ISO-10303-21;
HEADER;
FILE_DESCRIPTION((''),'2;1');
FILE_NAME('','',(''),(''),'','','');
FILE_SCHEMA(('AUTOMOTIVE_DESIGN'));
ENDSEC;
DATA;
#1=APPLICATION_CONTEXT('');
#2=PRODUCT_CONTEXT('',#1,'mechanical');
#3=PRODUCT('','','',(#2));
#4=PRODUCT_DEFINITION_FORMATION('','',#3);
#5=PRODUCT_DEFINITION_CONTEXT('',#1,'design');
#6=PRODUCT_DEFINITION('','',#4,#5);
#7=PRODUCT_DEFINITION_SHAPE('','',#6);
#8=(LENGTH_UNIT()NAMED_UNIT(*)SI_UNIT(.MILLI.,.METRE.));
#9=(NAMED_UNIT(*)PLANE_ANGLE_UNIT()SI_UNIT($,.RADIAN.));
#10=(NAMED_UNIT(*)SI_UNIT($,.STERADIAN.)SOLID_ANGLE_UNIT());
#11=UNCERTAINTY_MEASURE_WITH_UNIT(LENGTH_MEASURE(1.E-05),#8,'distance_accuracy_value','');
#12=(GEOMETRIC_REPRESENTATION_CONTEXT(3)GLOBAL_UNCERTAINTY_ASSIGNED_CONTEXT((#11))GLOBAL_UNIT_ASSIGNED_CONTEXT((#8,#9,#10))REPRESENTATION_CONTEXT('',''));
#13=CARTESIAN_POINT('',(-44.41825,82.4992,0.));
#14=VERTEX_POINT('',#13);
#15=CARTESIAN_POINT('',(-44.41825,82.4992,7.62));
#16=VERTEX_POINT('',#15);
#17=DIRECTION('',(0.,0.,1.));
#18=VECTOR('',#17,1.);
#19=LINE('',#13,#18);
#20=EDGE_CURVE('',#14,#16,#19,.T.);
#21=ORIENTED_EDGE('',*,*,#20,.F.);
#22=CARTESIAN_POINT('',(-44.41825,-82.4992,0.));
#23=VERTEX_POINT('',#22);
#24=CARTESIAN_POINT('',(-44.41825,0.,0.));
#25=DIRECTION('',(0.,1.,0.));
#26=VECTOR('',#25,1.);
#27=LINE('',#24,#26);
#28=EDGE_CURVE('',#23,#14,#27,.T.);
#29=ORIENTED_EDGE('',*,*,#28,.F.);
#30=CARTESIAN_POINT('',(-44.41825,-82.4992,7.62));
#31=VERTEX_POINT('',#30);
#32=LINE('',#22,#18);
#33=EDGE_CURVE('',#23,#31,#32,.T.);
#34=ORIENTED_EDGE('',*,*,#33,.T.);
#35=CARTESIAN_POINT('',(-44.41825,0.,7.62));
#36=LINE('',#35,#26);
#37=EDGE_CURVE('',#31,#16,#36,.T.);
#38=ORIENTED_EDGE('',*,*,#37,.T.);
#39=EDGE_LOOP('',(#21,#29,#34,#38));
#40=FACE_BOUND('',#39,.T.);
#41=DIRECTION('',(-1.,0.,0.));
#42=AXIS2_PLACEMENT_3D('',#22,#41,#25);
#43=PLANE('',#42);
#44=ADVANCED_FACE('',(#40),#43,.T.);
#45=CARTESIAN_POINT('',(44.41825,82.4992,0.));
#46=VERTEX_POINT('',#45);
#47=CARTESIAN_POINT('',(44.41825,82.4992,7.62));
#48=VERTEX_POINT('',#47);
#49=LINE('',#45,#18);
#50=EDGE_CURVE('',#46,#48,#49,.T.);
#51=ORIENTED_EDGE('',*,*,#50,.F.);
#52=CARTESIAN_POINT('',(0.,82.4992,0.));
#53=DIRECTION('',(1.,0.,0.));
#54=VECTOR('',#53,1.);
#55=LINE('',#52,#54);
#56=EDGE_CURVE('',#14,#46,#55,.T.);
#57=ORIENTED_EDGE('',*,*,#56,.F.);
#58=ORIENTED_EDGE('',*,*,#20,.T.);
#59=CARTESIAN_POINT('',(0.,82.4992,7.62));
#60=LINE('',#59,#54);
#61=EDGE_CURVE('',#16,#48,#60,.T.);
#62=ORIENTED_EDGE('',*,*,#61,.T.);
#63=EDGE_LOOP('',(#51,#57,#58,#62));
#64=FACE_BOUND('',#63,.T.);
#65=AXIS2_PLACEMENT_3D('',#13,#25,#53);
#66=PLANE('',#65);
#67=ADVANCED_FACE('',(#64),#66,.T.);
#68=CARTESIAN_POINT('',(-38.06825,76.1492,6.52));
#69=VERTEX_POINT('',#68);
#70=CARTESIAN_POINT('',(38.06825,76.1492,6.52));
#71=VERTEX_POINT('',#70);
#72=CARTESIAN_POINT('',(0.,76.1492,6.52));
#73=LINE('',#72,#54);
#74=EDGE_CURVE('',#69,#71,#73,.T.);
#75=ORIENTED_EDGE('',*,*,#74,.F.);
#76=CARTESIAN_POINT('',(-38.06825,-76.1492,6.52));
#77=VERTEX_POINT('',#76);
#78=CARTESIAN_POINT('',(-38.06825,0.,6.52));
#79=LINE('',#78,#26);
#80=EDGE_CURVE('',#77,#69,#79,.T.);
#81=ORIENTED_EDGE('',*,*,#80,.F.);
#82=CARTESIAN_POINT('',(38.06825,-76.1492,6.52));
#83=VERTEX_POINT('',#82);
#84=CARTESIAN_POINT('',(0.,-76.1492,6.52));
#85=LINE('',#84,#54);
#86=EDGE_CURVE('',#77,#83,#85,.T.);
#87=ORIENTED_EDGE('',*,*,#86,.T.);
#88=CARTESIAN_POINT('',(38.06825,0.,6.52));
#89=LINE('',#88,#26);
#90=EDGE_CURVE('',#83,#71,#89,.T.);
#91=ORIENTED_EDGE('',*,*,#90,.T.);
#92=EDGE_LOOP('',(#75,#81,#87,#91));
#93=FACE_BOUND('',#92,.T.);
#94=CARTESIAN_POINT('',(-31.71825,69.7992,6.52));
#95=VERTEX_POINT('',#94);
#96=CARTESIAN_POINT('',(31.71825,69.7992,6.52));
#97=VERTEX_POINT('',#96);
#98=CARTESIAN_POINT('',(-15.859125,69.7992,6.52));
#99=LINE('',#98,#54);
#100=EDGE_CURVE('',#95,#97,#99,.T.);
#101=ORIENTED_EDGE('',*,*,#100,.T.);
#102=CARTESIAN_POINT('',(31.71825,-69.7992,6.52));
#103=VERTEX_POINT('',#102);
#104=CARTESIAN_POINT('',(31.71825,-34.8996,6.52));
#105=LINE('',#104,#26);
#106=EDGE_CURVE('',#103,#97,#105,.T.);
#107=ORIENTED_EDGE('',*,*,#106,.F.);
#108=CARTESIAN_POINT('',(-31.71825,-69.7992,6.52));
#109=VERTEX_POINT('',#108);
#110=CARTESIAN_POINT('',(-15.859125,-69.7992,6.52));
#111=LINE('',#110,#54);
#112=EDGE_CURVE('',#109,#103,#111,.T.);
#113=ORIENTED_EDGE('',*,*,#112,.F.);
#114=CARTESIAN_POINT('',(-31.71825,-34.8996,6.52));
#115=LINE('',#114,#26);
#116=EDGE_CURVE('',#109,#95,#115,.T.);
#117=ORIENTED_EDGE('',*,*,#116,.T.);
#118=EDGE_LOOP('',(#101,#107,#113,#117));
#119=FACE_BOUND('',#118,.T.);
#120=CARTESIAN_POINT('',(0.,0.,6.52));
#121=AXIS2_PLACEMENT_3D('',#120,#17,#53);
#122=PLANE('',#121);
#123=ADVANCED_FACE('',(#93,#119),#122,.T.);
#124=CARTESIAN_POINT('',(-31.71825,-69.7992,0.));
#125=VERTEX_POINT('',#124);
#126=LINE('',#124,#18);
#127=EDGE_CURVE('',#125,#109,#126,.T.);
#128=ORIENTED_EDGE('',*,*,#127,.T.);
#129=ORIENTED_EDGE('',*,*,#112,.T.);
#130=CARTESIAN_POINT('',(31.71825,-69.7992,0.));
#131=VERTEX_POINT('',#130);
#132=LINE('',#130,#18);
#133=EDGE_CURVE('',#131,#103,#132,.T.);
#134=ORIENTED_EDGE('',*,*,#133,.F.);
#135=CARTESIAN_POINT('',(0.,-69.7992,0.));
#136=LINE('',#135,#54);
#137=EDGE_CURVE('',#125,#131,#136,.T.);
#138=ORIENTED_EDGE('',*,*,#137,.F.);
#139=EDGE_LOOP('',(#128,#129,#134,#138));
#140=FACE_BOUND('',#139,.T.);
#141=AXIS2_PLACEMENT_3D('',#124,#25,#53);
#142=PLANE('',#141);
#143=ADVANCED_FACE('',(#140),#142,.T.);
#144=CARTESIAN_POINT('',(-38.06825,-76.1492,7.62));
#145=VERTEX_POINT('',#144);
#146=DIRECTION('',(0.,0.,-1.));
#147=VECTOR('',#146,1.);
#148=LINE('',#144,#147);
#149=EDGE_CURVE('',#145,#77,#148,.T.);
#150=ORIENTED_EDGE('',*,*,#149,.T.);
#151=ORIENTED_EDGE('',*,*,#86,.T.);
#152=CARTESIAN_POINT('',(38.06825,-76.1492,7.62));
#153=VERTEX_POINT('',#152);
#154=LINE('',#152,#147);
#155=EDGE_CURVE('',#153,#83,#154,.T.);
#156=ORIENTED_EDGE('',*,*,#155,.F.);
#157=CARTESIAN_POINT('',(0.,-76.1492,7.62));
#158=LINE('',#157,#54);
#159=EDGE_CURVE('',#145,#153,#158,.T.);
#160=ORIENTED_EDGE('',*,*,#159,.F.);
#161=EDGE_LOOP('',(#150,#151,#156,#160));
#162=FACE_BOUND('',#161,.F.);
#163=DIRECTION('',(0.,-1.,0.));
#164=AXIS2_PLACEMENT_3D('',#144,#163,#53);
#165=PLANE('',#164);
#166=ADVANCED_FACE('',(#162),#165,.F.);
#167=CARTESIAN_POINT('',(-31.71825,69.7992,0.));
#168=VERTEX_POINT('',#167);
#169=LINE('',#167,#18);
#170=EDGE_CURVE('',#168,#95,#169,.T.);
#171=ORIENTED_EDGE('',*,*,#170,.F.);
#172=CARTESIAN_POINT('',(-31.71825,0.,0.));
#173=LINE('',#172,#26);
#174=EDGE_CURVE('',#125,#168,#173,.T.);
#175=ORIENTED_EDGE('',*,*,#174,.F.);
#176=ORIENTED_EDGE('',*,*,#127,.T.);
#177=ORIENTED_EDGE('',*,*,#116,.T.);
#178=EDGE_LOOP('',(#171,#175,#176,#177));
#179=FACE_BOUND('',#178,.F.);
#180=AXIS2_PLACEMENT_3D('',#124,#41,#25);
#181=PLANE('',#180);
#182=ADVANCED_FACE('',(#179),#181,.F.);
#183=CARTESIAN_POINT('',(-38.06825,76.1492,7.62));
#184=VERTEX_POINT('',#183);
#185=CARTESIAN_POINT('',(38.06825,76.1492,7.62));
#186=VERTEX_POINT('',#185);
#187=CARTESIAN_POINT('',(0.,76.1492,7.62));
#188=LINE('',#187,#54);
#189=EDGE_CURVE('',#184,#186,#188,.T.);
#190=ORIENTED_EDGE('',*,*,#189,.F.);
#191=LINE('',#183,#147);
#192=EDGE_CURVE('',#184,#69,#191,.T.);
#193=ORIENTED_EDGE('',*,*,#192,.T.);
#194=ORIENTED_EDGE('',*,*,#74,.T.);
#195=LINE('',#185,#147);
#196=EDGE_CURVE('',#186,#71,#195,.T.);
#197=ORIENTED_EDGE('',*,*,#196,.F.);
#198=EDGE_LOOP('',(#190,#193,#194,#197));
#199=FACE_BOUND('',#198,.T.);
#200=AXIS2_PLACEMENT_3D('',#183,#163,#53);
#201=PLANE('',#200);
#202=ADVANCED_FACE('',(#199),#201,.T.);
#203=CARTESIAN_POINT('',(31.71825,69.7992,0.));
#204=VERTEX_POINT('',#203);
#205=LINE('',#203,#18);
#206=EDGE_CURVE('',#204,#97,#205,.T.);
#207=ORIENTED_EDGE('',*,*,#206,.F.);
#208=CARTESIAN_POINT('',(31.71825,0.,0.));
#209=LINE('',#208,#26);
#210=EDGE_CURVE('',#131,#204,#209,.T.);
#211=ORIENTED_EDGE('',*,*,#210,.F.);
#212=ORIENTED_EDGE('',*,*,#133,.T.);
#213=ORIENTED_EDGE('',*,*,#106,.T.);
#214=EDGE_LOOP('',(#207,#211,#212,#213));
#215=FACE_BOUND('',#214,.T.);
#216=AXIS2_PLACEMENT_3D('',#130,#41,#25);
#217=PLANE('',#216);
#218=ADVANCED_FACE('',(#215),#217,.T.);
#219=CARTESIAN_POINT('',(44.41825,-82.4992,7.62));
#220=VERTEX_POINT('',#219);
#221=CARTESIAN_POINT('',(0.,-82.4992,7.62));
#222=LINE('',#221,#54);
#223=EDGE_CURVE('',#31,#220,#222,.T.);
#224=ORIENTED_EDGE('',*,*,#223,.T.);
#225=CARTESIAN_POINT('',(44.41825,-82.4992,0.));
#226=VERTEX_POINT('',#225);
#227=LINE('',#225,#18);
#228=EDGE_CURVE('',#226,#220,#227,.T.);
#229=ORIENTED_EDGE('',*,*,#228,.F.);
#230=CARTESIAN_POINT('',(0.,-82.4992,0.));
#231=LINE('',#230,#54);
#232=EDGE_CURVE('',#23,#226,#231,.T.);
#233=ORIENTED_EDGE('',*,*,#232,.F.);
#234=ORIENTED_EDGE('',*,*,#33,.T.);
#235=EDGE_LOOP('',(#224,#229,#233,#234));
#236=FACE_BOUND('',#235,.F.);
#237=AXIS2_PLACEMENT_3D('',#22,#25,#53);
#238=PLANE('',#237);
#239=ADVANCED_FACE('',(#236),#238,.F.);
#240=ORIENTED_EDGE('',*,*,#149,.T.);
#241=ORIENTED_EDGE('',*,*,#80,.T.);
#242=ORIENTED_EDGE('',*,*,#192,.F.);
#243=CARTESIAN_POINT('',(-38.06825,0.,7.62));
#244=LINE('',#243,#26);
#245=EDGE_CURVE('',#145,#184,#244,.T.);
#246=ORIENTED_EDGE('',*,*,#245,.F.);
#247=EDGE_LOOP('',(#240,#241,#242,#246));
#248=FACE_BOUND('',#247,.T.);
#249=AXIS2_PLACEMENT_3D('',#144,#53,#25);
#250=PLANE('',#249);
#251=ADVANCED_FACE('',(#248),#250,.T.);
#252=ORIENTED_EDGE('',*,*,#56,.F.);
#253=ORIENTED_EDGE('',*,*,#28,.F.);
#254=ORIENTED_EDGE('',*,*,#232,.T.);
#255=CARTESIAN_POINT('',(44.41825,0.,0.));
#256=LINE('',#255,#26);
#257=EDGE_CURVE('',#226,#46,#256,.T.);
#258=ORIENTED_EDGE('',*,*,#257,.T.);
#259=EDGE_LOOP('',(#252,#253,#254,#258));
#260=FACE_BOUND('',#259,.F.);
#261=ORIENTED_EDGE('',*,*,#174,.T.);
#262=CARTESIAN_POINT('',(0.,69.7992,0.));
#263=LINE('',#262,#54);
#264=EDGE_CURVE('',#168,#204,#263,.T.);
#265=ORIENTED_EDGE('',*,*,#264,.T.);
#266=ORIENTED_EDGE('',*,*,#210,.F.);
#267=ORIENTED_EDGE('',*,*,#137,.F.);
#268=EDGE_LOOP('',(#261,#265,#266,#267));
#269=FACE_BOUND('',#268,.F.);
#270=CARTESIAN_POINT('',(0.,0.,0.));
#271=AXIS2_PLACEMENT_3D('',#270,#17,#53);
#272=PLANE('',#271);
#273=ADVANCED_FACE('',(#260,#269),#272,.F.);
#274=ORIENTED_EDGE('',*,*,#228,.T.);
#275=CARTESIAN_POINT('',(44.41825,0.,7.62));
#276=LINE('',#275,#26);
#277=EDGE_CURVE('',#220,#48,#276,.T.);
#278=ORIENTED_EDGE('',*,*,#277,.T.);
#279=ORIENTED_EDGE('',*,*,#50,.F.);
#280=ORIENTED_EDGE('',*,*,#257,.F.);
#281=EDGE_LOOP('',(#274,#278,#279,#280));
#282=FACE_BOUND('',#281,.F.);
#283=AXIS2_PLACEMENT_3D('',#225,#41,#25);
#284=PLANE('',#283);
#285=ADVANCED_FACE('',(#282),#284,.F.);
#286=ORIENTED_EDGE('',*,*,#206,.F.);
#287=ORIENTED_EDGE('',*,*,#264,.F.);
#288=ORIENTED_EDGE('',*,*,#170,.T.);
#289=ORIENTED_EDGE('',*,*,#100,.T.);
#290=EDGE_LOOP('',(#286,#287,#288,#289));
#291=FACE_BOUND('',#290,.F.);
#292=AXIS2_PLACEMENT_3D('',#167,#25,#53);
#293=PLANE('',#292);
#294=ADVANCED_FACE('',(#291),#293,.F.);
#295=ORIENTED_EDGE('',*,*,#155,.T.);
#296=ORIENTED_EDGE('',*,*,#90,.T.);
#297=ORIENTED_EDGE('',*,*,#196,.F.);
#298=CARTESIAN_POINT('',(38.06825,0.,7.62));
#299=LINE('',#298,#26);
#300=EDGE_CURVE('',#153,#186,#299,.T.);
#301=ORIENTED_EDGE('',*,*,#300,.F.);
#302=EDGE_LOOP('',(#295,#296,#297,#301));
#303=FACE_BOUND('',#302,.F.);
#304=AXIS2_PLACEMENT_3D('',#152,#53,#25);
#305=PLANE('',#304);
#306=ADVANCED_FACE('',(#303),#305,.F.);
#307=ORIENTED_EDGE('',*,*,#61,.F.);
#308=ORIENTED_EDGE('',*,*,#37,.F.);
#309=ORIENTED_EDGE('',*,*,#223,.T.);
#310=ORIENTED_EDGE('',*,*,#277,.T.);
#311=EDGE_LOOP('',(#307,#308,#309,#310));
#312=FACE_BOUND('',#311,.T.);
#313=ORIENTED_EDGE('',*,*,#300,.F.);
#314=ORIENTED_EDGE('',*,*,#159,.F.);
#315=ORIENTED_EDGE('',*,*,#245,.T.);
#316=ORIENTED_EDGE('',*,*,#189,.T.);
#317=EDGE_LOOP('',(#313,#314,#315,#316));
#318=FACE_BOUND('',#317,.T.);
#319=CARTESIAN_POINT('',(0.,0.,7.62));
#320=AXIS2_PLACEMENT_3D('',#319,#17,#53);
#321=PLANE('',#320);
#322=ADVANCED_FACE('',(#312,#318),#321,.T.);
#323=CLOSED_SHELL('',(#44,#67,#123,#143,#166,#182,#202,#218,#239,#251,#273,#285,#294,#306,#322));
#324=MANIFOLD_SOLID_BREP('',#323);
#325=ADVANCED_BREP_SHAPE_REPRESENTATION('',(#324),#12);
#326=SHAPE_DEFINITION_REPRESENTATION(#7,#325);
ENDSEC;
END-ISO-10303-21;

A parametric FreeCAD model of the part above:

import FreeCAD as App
import Part
import Sketcher

V = App.Vector
Q = App.Units.Quantity

doc = App.newDocument("Part")
body = doc.addObject("PartDesign::Body", "Body")

sketch1 = doc.addObject("Sketcher::SketchObject", "Sketch")
body.addObject(sketch1)
sketch1.AttachmentSupport = (doc.XY_Plane, [""])
sketch1.MapMode = "FlatFace"
sketch1.addGeometry([
    Part.LineSegment(V(-44.41825, 82.4992, 0), V(-44.41825, -82.4992, 0)),
    Part.LineSegment(V(-44.41825, -82.4992, 0), V(44.41825, -82.4992, 0)),
    Part.LineSegment(V(44.41825, -82.4992, 0), V(44.41825, 82.4992, 0)),
    Part.LineSegment(V(44.41825, 82.4992, 0), V(-44.41825, 82.4992, 0)),
    Part.LineSegment(V(31.71825, -69.7992, 0), V(-31.71825, -69.7992, 0)),
    Part.LineSegment(V(-31.71825, -69.7992, 0), V(-31.71825, 69.7992, 0)),
    Part.LineSegment(V(-31.71825, 69.7992, 0), V(31.71825, 69.7992, 0)),
    Part.LineSegment(V(31.71825, 69.7992, 0), V(31.71825, -69.7992, 0)),
], False)
sketch1.addConstraint([
    Sketcher.Constraint("Coincident", 0, 2, 1, 1),
    Sketcher.Constraint("Coincident", 1, 2, 2, 1),
    Sketcher.Constraint("Coincident", 2, 2, 3, 1),
    Sketcher.Constraint("Coincident", 3, 2, 0, 1),
    Sketcher.Constraint("Coincident", 4, 2, 5, 1),
    Sketcher.Constraint("Coincident", 5, 2, 6, 1),
    Sketcher.Constraint("Coincident", 6, 2, 7, 1),
    Sketcher.Constraint("Coincident", 7, 2, 4, 1),
    Sketcher.Constraint("Vertical", 0),
    Sketcher.Constraint("Horizontal", 1),
    Sketcher.Constraint("Vertical", 2),
    Sketcher.Constraint("Horizontal", 3),
    Sketcher.Constraint("Horizontal", 4),
    Sketcher.Constraint("Vertical", 5),
    Sketcher.Constraint("Horizontal", 6),
    Sketcher.Constraint("Vertical", 7),
    Sketcher.Constraint("Symmetric", 0, 2, 2, 2, -1, 1),
    Sketcher.Constraint("Symmetric", 4, 2, 6, 2, -1, 1),
    Sketcher.Constraint("DistanceX", 0, 2, 4, 2, Q("0.5 in")),
    Sketcher.Constraint("DistanceY", 0, 2, 4, 2, Q("0.5 in")),
    Sketcher.Constraint("DistanceY", 0, 2, 0, 1, Q("6.496 in")),
    Sketcher.Constraint("DistanceX", 1, 1, 1, 2, Q("3.4975 in")),
])
pad1 = doc.addObject("PartDesign::Pad", "Pad")
body.addObject(pad1)
pad1.Profile = sketch1
pad1.Length = Q("0.3 in")

sketch2 = doc.addObject("Sketcher::SketchObject", "Sketch001")
body.addObject(sketch2)
sketch2.AttachmentSupport = (doc.XY_Plane, [""])
sketch2.MapMode = "FlatFace"
sketch2.AttachmentOffset = App.Placement(V(0, 0, 0.3 * 25.4), App.Rotation())
sketch2.addGeometry([
    Part.LineSegment(V(-38.06825, 76.1492, 0), V(-38.06825, -76.1492, 0)),
    Part.LineSegment(V(-38.06825, -76.1492, 0), V(38.06825, -76.1492, 0)),
    Part.LineSegment(V(38.06825, -76.1492, 0), V(38.06825, 76.1492, 0)),
    Part.LineSegment(V(38.06825, 76.1492, 0), V(-38.06825, 76.1492, 0)),
], False)
sketch2.addConstraint([
    Sketcher.Constraint("Coincident", 0, 2, 1, 1),
    Sketcher.Constraint("Coincident", 1, 2, 2, 1),
    Sketcher.Constraint("Coincident", 2, 2, 3, 1),
    Sketcher.Constraint("Coincident", 3, 2, 0, 1),
    Sketcher.Constraint("Vertical", 0),
    Sketcher.Constraint("Horizontal", 1),
    Sketcher.Constraint("Vertical", 2),
    Sketcher.Constraint("Horizontal", 3),
    Sketcher.Constraint("Symmetric", 0, 2, 2, 2, -1, 1),
    Sketcher.Constraint("DistanceY", 0, 2, 0, 1, Q("5.996 in")),
    Sketcher.Constraint("DistanceX", 1, 1, 1, 2, Q("2.9975 in")),
])
pocket1 = doc.addObject("PartDesign::Pocket", "Pocket")
body.addObject(pocket1)
pocket1.Profile = sketch2
pocket1.Length = 1.1

doc.recompute()
